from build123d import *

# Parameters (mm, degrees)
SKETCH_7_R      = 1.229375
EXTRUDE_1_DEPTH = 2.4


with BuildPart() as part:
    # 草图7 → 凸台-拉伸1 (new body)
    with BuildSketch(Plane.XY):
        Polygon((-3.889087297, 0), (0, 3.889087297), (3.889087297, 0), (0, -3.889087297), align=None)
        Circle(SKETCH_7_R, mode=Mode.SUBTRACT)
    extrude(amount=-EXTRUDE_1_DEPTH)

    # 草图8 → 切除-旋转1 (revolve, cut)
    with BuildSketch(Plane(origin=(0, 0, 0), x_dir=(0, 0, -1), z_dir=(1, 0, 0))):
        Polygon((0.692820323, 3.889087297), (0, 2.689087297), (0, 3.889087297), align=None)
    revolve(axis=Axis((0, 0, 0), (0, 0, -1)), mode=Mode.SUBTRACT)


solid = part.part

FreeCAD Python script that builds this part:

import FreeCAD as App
import Part
import Sketcher
Q = App.Units.Quantity


def add_polygon(sketch, points):
    """Adds a closed chain of lines whose ends are joined by coincident constraints."""
    first, n = sketch.GeometryCount, len(points)
    for a, b in zip(points, points[1:] + points[:1]):
        sketch.addGeometry(Part.LineSegment(App.Vector(*a, 0), App.Vector(*b, 0)), False)
    for i in range(n):
        sketch.addConstraint(Sketcher.Constraint("Coincident", first + i, 2, first + (i + 1) % n, 1))

doc = App.newDocument("Part")
params = doc.addObject("Spreadsheet::Sheet", "Params")
for row, (alias, value) in enumerate([
    ("sketch1_length", "5.5 mm"),
    ("pad1_length", "2.4 mm"),
    ("sketch2_width", "1.2 mm"),
    ("groove_angle", "360 deg"),
], start=1):
    params.set(f"A{row}", alias)
    params.set(f"B{row}", "=" + value)
    params.setAlias(f"B{row}", alias)

body = doc.addObject("PartDesign::Body", "Body")

# Sketch on XY plane
sketch1 = doc.addObject("Sketcher::SketchObject", "Sketch")
body.addObject(sketch1)
sketch1.AttachmentSupport = (doc.XY_Plane, [""])
sketch1.MapMode = "FlatFace"
add_polygon(sketch1, [(0, 3.9), (-3.9, 0), (0, -3.9), (3.9, 0)])  # lines 0-3
sketch1.addGeometry(Part.Circle(App.Vector(0, 0, 0), App.Vector(0, 0, 1), 1.2), False)  # 4
sketch1.addConstraint([
    Sketcher.Constraint("Coincident", 4, 3, -1, 1),
    Sketcher.Constraint("Symmetric", 0, 2, 2, 2, -1, 1),
    Sketcher.Constraint("Symmetric", 1, 2, 3, 2, -1, 1),
    Sketcher.Constraint("PointOnObject", 0, 2, -1),
    Sketcher.Constraint("PointOnObject", 1, 2, -2),
    Sketcher.Constraint("Perpendicular", 0, 1),
    Sketcher.Constraint("Distance", 0, 5.5),
    Sketcher.Constraint("Diameter", 4, 2.45875),
])
sketch1.setExpression("Constraints[10]", "Params.sketch1_length")
pad1 = doc.addObject("PartDesign::Pad", "Pad")
body.addObject(pad1)
pad1.Profile = sketch1
pad1.setExpression("Length", "Params.pad1_length")
pad1.Reversed = True

# Sketch on YZ plane
sketch2 = doc.addObject("Sketcher::SketchObject", "Sketch001")
body.addObject(sketch2)
sketch2.AttachmentSupport = (doc.YZ_Plane, [""])
sketch2.MapMode = "FlatFace"
add_polygon(sketch2, [(2.7, 0), (3.9, -0.7), (3.9, 0)])  # lines 0-2
sketch2.addConstraint([
    Sketcher.Constraint("Vertical", 1),
    Sketcher.Constraint("Horizontal", 2),
    Sketcher.Constraint("PointOnObject", 1, 2, -1),
    Sketcher.Constraint("Angle", 0, Q("-30 deg")),
    Sketcher.Constraint("DistanceX", 2, 2, 2, 1, 1.2),
    Sketcher.Constraint("DistanceX", -1, 1, 0, 2, 3.889087),
])
sketch2.setExpression("Constraints[7]", "Params.sketch2_width")
groove = doc.addObject("PartDesign::Groove", "Groove")
body.addObject(groove)
groove.Profile = sketch2
groove.ReferenceAxis = (sketch2, ["V_Axis"])
groove.setExpression("Angle", "Params.groove_angle")

doc.recompute()
